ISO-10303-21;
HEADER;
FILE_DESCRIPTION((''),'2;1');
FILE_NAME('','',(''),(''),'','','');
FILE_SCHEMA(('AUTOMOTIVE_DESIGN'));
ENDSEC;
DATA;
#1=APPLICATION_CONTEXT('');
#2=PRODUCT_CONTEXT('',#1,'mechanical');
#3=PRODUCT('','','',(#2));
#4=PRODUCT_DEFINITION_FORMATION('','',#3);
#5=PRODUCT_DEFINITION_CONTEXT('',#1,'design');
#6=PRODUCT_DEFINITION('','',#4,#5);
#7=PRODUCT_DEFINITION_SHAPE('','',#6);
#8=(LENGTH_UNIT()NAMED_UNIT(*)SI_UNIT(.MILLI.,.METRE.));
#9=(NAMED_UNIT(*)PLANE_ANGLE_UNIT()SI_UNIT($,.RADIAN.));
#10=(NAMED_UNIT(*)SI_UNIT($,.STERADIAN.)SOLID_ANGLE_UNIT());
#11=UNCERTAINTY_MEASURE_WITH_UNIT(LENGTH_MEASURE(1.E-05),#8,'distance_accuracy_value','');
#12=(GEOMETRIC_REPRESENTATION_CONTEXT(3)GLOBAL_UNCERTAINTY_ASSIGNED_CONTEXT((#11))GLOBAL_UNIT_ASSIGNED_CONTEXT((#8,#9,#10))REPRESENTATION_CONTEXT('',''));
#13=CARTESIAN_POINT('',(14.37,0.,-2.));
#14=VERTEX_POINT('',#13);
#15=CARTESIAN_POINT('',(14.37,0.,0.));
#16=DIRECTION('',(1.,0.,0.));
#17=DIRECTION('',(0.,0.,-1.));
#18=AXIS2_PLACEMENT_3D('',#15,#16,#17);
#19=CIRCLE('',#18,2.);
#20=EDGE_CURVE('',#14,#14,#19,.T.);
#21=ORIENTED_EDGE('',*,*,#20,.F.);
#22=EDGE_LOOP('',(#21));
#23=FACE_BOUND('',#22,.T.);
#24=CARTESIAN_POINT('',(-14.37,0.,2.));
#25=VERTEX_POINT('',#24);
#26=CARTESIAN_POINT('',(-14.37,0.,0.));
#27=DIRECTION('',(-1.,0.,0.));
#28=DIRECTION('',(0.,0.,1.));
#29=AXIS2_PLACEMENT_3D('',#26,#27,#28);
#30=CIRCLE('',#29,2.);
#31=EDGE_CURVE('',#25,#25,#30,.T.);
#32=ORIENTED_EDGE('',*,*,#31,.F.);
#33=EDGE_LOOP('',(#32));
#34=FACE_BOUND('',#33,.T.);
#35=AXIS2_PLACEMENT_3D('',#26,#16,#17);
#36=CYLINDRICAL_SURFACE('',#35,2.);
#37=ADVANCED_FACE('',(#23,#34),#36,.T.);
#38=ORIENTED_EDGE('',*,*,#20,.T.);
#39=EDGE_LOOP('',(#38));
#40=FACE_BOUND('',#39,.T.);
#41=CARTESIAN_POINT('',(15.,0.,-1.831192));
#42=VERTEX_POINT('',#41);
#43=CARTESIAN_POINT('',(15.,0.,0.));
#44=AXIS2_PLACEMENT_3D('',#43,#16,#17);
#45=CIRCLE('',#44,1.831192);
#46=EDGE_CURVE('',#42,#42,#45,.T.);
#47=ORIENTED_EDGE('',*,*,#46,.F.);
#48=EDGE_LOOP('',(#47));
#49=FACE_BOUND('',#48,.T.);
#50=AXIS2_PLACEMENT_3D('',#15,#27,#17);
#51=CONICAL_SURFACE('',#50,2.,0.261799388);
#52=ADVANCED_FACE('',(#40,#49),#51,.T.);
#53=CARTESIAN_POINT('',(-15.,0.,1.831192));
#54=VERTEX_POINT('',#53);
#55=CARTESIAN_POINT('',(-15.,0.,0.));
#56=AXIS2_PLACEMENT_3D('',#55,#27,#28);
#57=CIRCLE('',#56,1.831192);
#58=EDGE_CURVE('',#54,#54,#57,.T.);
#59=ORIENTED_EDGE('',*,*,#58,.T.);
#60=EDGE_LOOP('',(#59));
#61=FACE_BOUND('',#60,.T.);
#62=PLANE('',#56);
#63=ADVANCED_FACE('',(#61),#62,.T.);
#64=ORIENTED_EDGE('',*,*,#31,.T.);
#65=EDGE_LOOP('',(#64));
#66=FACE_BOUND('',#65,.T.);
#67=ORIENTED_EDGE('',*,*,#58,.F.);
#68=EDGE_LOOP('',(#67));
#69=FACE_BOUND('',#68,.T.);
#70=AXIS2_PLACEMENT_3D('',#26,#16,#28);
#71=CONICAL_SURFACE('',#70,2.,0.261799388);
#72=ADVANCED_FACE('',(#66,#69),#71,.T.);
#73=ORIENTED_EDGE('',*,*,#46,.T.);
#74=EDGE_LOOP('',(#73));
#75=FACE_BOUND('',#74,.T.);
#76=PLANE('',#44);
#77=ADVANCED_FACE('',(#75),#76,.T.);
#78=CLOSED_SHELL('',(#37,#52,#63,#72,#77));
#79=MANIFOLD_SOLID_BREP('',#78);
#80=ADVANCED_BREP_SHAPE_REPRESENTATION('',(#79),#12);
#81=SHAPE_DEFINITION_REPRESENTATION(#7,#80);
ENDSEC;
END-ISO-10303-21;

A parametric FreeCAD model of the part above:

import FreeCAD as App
import Part
import Sketcher
from FreeCAD import Vector
Q = App.Units.Quantity

doc = App.newDocument("Part")
params = doc.addObject("Spreadsheet::Sheet", "Params")
for row, (alias, value) in enumerate([
    ("sketch1_diameter", "4 mm"),
    ("pad1_length", "14.37 mm"),
    ("pad1_length2", "14.37 mm"),
    ("sketch2_diameter", "4 mm"),
    ("pad2_length", "0.63 mm"),
    ("pad2_taper", "-15 deg"),
    ("sketch3_diameter", "4 mm"),
    ("pad3_length", "0.63 mm"),
    ("pad3_taper", "-15 deg"),
], start=1):
    params.set(f"A{row}", alias)
    params.set(f"B{row}", "=" + value)
    params.setAlias(f"B{row}", alias)

body = doc.addObject("PartDesign::Body", "Body")

# Sketch on YZ plane
sketch1 = body.newObject("Sketcher::SketchObject", "Sketch")
sketch1.AttachmentSupport = (doc.getObject("YZ_Plane"), [""])
sketch1.MapMode = "FlatFace"
sketch1.addGeometry(Part.Circle(Vector(0, 0, 0), Vector(0, 0, 1), 2), False)
sketch1.addConstraint(Sketcher.Constraint("Coincident", 0, 3, -1, 1))
sketch1.addConstraint(Sketcher.Constraint("Diameter", 0, Q("4 mm")))
sketch1.setExpression("Constraints[1]", "Params.sketch1_diameter")
pad1 = body.newObject("PartDesign::Pad", "Pad")
pad1.Profile = sketch1
pad1.Type = "TwoLengths"
pad1.setExpression("Length", "Params.pad1_length")
pad1.setExpression("Length2", "Params.pad1_length2")

# Sketch on YZ plane
sketch2 = body.newObject("Sketcher::SketchObject", "Sketch001")
sketch2.AttachmentSupport = (doc.getObject("YZ_Plane"), [""])
sketch2.MapMode = "FlatFace"
sketch2.AttachmentOffset = App.Placement(Vector(0, 0, 14.37), App.Rotation())
sketch2.addGeometry(Part.Circle(Vector(0, 0, 0), Vector(0, 0, 1), 2), False)
sketch2.addConstraint(Sketcher.Constraint("Coincident", 0, 3, -1, 1))
sketch2.addConstraint(Sketcher.Constraint("Diameter", 0, Q("4 mm")))
sketch2.setExpression("Constraints[1]", "Params.sketch2_diameter")
pad2 = body.newObject("PartDesign::Pad", "Pad001")
pad2.Profile = sketch2
pad2.setExpression("Length", "Params.pad2_length")
pad2.setExpression("TaperAngle", "Params.pad2_taper")

# Sketch on YZ plane
sketch3 = body.newObject("Sketcher::SketchObject", "Sketch002")
sketch3.AttachmentSupport = (doc.getObject("YZ_Plane"), [""])
sketch3.MapMode = "FlatFace"
sketch3.AttachmentOffset = App.Placement(Vector(0, 0, -14.37), App.Rotation())
sketch3.addGeometry(Part.Circle(Vector(0, 0, 0), Vector(0, 0, 1), 2), False)
sketch3.addConstraint(Sketcher.Constraint("Coincident", 0, 3, -1, 1))
sketch3.addConstraint(Sketcher.Constraint("Diameter", 0, Q("4 mm")))
sketch3.setExpression("Constraints[1]", "Params.sketch3_diameter")
pad3 = body.newObject("PartDesign::Pad", "Pad002")
pad3.Profile = sketch3
pad3.setExpression("Length", "Params.pad3_length")
pad3.Reversed = True
pad3.setExpression("TaperAngle", "Params.pad3_taper")

doc.recompute()
